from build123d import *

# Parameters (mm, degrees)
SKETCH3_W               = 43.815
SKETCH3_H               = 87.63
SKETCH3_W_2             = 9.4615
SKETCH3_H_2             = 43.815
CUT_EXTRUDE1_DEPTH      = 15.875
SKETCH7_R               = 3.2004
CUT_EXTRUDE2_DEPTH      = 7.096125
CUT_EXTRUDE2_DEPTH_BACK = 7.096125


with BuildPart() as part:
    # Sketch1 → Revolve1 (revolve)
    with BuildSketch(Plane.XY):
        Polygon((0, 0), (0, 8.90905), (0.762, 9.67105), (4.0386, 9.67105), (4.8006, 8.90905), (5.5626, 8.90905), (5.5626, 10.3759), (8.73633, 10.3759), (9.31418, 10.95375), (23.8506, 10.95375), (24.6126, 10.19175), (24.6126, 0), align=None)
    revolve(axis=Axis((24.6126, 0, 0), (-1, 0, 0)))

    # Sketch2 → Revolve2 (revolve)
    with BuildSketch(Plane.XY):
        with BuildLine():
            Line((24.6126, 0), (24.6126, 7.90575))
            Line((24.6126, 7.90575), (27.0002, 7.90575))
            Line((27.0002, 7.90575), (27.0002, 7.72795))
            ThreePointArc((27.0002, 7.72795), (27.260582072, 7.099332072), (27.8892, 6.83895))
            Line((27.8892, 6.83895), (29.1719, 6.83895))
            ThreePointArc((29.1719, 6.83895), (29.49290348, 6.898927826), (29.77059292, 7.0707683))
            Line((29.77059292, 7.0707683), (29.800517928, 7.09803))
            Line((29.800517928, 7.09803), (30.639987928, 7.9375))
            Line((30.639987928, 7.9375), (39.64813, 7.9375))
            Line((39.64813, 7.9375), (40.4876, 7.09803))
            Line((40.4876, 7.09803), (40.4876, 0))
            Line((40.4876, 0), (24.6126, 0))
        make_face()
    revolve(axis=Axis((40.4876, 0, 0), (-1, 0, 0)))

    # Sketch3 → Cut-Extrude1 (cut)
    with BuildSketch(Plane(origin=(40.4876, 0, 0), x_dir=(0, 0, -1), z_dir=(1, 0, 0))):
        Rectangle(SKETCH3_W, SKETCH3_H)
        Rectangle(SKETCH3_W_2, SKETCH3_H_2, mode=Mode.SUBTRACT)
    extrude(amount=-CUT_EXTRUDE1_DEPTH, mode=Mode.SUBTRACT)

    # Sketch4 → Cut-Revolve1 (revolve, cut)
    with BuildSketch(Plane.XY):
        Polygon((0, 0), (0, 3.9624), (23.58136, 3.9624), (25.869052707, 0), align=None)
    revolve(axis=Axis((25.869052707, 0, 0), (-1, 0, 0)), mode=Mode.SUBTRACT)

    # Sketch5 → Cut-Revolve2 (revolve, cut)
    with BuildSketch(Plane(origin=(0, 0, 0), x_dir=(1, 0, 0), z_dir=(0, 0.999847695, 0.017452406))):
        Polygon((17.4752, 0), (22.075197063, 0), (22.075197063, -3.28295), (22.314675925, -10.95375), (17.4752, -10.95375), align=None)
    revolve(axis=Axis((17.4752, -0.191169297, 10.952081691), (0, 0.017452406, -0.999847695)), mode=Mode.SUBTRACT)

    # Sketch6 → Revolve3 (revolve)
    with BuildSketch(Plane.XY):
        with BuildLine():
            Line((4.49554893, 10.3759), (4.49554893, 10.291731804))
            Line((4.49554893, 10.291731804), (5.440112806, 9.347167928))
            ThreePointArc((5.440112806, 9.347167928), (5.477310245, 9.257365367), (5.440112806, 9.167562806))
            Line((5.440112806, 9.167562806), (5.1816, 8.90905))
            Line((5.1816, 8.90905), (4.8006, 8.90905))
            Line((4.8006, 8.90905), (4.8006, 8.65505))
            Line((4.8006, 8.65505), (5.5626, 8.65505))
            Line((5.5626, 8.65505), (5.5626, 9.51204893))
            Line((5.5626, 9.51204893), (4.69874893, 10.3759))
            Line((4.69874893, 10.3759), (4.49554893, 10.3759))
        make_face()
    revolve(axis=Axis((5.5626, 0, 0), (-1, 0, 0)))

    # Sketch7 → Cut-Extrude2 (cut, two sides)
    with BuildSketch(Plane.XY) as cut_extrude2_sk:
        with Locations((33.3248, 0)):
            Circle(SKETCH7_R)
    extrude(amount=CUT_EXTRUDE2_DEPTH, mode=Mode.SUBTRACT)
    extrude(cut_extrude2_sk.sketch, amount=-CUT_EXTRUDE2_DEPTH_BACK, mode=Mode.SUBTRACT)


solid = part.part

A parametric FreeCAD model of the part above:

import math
import FreeCAD as App
import Part
import Sketcher
Q = App.Units.Quantity


def add_polygon(sketch, points):
    """Adds a closed chain of lines whose ends are joined by coincident constraints."""
    first, n = sketch.GeometryCount, len(points)
    for a, b in zip(points, points[1:] + points[:1]):
        sketch.addGeometry(Part.LineSegment(App.Vector(*a, 0), App.Vector(*b, 0)), False)
    for i in range(n):
        sketch.addConstraint(Sketcher.Constraint("Coincident", first + i, 2, first + (i + 1) % n, 1))

doc = App.newDocument("Part")
body = doc.addObject("PartDesign::Body", "Body")

sketch1 = body.newObject("Sketcher::SketchObject", "Sketch")
sketch1.AttachmentSupport = (doc.getObject("XY_Plane"), [""])
sketch1.MapMode = "FlatFace"
add_polygon(sketch1, [(0, 8.9), (0, 0), (24.6, 0), (24.6, 10.2), (23.9, 11), (9.3, 11), (8.7, 10.4), (5.6, 10.4), (5.6, 8.9), (4.8, 8.9), (4, 9.7), (0.8, 9.7)])
sketch1.addConstraint([
    Sketcher.Constraint("Vertical", 0),
    Sketcher.Constraint("Horizontal", 1),
    Sketcher.Constraint("Vertical", 2),
    Sketcher.Constraint("Horizontal", 4),
    Sketcher.Constraint("Horizontal", 6),
    Sketcher.Constraint("Vertical", 7),
    Sketcher.Constraint("Horizontal", 8),
    Sketcher.Constraint("Horizontal", 10),
    Sketcher.Constraint("Coincident", 0, 2, -1, 1),
    Sketcher.Constraint("Perpendicular", 3, 5),
    Sketcher.Constraint("Perpendicular", 5, 9),
    Sketcher.Constraint("Perpendicular", 9, 11),
    Sketcher.Constraint("Horizontal", 8, 2, 11, 2),
    Sketcher.Constraint("Equal", 3, 9),
    Sketcher.Constraint("Equal", 9, 11),
    Sketcher.Constraint("DistanceX", 8, 2, 8, 1, Q("0.03 in")),
    Sketcher.Constraint("DistanceX", 1, 1, 1, 2, Q("0.969 in")),
    Sketcher.Constraint("DistanceX", 10, 2, 10, 1, Q("0.129 in")),
    Sketcher.Constraint("DistanceX", -1, 1, 10, 2, Q("0.03 in")),
    Sketcher.Constraint("DistanceX", 4, 2, 4, 1, Q("0.5723 in")),
    Sketcher.Constraint("DistanceY", -1, 1, 5, 2, Q("0.4085 in")),
    Sketcher.Constraint("DistanceY", 7, 2, 4, 2, Q("0.0805 in")),
    Sketcher.Constraint("DistanceX", 6, 2, 6, 1, 3.17373),
])
revolution = body.newObject("PartDesign::Revolution", "Revolution")
revolution.Profile = sketch1
revolution.ReferenceAxis = (sketch1, ["H_Axis"])
revolution.Angle = 360

sketch2 = body.newObject("Sketcher::SketchObject", "Sketch001")
sketch2.AttachmentSupport = (doc.getObject("XY_Plane"), [""])
sketch2.MapMode = "FlatFace"
sketch2.addGeometry([
    Part.LineSegment(App.Vector(24.613, 7.906, 0), App.Vector(24.613, 0, 0)),
    Part.LineSegment(App.Vector(24.613, 0, 0), App.Vector(40.488, 0, 0)),
    Part.LineSegment(App.Vector(40.488, 0, 0), App.Vector(40.488, 7.098, 0)),
    Part.LineSegment(App.Vector(40.488, 7.098, 0), App.Vector(39.648, 7.938, 0)),
    Part.LineSegment(App.Vector(39.648, 7.938, 0), App.Vector(30.64, 7.938, 0)),
    Part.LineSegment(App.Vector(30.64, 7.938, 0), App.Vector(29.801, 7.098, 0)),
    Part.LineSegment(App.Vector(29.801, 7.098, 0), App.Vector(29.771, 7.071, 0)),
    Part.ArcOfCircle(Part.Circle(App.Vector(29.172, 7.728, 0), App.Vector(0, 0, 1), 0.889), math.radians(-90), math.radians(-48)),
    Part.LineSegment(App.Vector(29.172, 6.839, 0), App.Vector(27.889, 6.839, 0)),
    Part.ArcOfCircle(Part.Circle(App.Vector(27.889, 7.728, 0), App.Vector(0, 0, 1), 0.889), math.radians(-180), math.radians(-90)),
    Part.LineSegment(App.Vector(27, 7.728, 0), App.Vector(27, 7.906, 0)),
    Part.LineSegment(App.Vector(27, 7.906, 0), App.Vector(24.613, 7.906, 0)),
], False)
sketch2.addConstraint([
    Sketcher.Constraint("Coincident", 0, 2, 1, 1),
    Sketcher.Constraint("Coincident", 1, 2, 2, 1),
    Sketcher.Constraint("Coincident", 2, 2, 3, 1),
    Sketcher.Constraint("Coincident", 3, 2, 4, 1),
    Sketcher.Constraint("Coincident", 4, 2, 5, 1),
    Sketcher.Constraint("Coincident", 5, 2, 6, 1),
    Sketcher.Constraint("Tangent", 6, 2, 7, 2),
    Sketcher.Constraint("Tangent", 7, 1, 8, 1),
    Sketcher.Constraint("Tangent", 8, 2, 9, 2),
    Sketcher.Constraint("Tangent", 9, 1, 10, 1),
    Sketcher.Constraint("Coincident", 10, 2, 11, 1),
    Sketcher.Constraint("Coincident", 11, 2, 0, 1),
    Sketcher.Constraint("Vertical", 0),
    Sketcher.Constraint("Horizontal", 1),
    Sketcher.Constraint("Vertical", 2),
    Sketcher.Constraint("Horizontal", 4),
    Sketcher.Constraint("Horizontal", 8),
    Sketcher.Constraint("Vertical", 10),
    Sketcher.Constraint("Horizontal", 11),
    Sketcher.Constraint("Equal", 7, 9),
    Sketcher.Constraint("PointOnObject", 0, 2, -1),
    Sketcher.Constraint("Perpendicular", 3, 5),
    Sketcher.Constraint("Horizontal", 2, 2, 5, 2),
    Sketcher.Constraint("Equal", 3, 5),
    Sketcher.Constraint("Radius", 7, Q("0.035 in")),
    Sketcher.Constraint("DistanceX", 1, 1, 1, 2, Q("0.625 in")),
    Sketcher.Constraint("DistanceX", 11, 2, 11, 1, Q("0.094 in")),
    Sketcher.Constraint("DistanceY", 10, 1, 10, 2, Q("0.007 in")),
    Sketcher.Constraint("DistanceX", 8, 2, 8, 1, Q("0.0505 in")),
    Sketcher.Constraint("DistanceX", -1, 1, 9, 3, Q("1.098 in")),
    Sketcher.Constraint("DistanceY", -1, 1, 3, 2, Q("0.3125 in")),
    Sketcher.Constraint("DistanceY", 2, 2, 7, 3, Q("0.0248 in")),
    Sketcher.Constraint("DistanceY", 0, 2, 0, 1, 7.90575),
    Sketcher.Constraint("Distance", 6, 0.040481),
])
revolution2 = body.newObject("PartDesign::Revolution", "Revolution001")
revolution2.Profile = sketch2
revolution2.ReferenceAxis = (sketch2, ["H_Axis"])
revolution2.Angle = 360

sketch3 = body.newObject("Sketcher::SketchObject", "Sketch002")
sketch3.AttachmentSupport = (doc.getObject("YZ_Plane"), [""])
sketch3.MapMode = "FlatFace"
sketch3.AttachmentOffset = App.Placement(App.Vector(0, 0, 1.594 * 25.4), App.Rotation())
add_polygon(sketch3, [(44, 22), (-44, 22), (-44, -22), (44, -22)])
add_polygon(sketch3, [(-22, -5), (-22, 5), (22, 5), (22, -5)])
sketch3.addConstraint([
    Sketcher.Constraint("Horizontal", 0),
    Sketcher.Constraint("Vertical", 1),
    Sketcher.Constraint("Horizontal", 2),
    Sketcher.Constraint("Vertical", 3),
    Sketcher.Constraint("Vertical", 4),
    Sketcher.Constraint("Horizontal", 5),
    Sketcher.Constraint("Vertical", 6),
    Sketcher.Constraint("Horizontal", 7),
    Sketcher.Constraint("Symmetric", 0, 2, 2, 2, -1, 1),
    Sketcher.Constraint("Symmetric", 4, 2, 6, 2, -1, 1),
    Sketcher.Constraint("Equal", 7, 1),
    Sketcher.Constraint("DistanceX", 0, 2, 0, 1, Q("3.45 in")),
    Sketcher.Constraint("DistanceX", 5, 1, 5, 2, Q("1.725 in")),
    Sketcher.Constraint("DistanceY", 4, 1, 4, 2, Q("0.3725 in")),
])
pocket1 = body.newObject("PartDesign::Pocket", "Pocket")
pocket1.Profile = sketch3
pocket1.Length = Q("0.625 in")

sketch4 = body.newObject("Sketcher::SketchObject", "Sketch003")
sketch4.AttachmentSupport = (doc.getObject("XY_Plane"), [""])
sketch4.MapMode = "FlatFace"
add_polygon(sketch4, [(0, 4), (0, 0), (25.9, 0), (23.6, 4)])
sketch4.addConstraint([
    Sketcher.Constraint("Vertical", 0),
    Sketcher.Constraint("Horizontal", 1),
    Sketcher.Constraint("Horizontal", 3),
    Sketcher.Constraint("Coincident", 0, 2, -1, 1),
    Sketcher.Constraint("Angle", 2, Q("120 deg")),
    Sketcher.Constraint("DistanceY", 0, 2, 0, 1, Q("0.156 in")),
    Sketcher.Constraint("DistanceX", 3, 2, 3, 1, Q("0.9284 in")),
])
groove = body.newObject("PartDesign::Groove", "Groove")
groove.Profile = sketch4
groove.ReferenceAxis = (sketch4, ["H_Axis"])
groove.Angle = 360

sketch5 = body.newObject("Sketcher::SketchObject", "Sketch004")
sketch5.Placement = App.Placement(App.Vector(0, 0, 0), App.Rotation(App.Vector(1, 0, 0), App.Vector(0, 0.017452406, -0.999847695), App.Vector(0, 0.999847695, 0.017452406), "ZXY"))
add_polygon(sketch5, [(22.1, 0), (17.5, 0), (17.5, -11), (22.3, -11), (22.1, -3.3)])
sketch5.addGeometry(Part.LineSegment(App.Vector(17.5, -11, 0), App.Vector(17.5, 0, 0)), True)
sketch5.addConstraint([
    Sketcher.Constraint("Horizontal", 0),
    Sketcher.Constraint("Vertical", 1),
    Sketcher.Constraint("Horizontal", 2),
    Sketcher.Constraint("Vertical", 4),
    Sketcher.Constraint("Vertical", 5),
    Sketcher.Constraint("Coincident", 5, 1, 1, 2),
    Sketcher.Constraint("PointOnObject", 0, 2, -1),
    Sketcher.Constraint("PointOnObject", 5, 2, -1),
    Sketcher.Constraint("DistanceX", -1, 1, 0, 2, Q("0.688 in")),
    Sketcher.Constraint("DistanceY", 2, 2, 3, 2, Q("0.302 in")),
    Sketcher.Constraint("DistanceY", 1, 2, 1, 1, 10.95375),
    Sketcher.Constraint("DistanceX", 0, 2, 0, 1, 4.599997),
    Sketcher.Constraint("DistanceX", 2, 1, 2, 2, 4.839476),
])
groove2 = body.newObject("PartDesign::Groove", "Groove001")
groove2.Profile = sketch5
groove2.ReferenceAxis = (sketch5, ["Axis0"])
groove2.Angle = 360

sketch6 = body.newObject("Sketcher::SketchObject", "Sketch005")
sketch6.AttachmentSupport = (doc.getObject("XY_Plane"), [""])
sketch6.MapMode = "FlatFace"
sketch6.addGeometry([
    Part.LineSegment(App.Vector(4.5, 10.38, 0), App.Vector(4.5, 10.29, 0)),
    Part.LineSegment(App.Vector(4.5, 10.29, 0), App.Vector(5.44, 9.35, 0)),
    Part.ArcOfCircle(Part.Circle(App.Vector(5.35, 9.26, 0), App.Vector(0, 0, 1), 0.13), math.radians(-45), math.radians(45)),
    Part.LineSegment(App.Vector(5.44, 9.17, 0), App.Vector(5.18, 8.91, 0)),
    Part.LineSegment(App.Vector(5.18, 8.91, 0), App.Vector(4.8, 8.91, 0)),
    Part.LineSegment(App.Vector(4.8, 8.91, 0), App.Vector(4.8, 8.66, 0)),
    Part.LineSegment(App.Vector(4.8, 8.66, 0), App.Vector(5.56, 8.66, 0)),
    Part.LineSegment(App.Vector(5.56, 8.66, 0), App.Vector(5.56, 9.51, 0)),
    Part.LineSegment(App.Vector(5.56, 9.51, 0), App.Vector(4.7, 10.38, 0)),
    Part.LineSegment(App.Vector(4.7, 10.38, 0), App.Vector(4.5, 10.38, 0)),
], False)
sketch6.addConstraint([
    Sketcher.Constraint("Coincident", 0, 2, 1, 1),
    Sketcher.Constraint("Tangent", 1, 2, 2, 2),
    Sketcher.Constraint("Tangent", 2, 1, 3, 1),
    Sketcher.Constraint("Coincident", 3, 2, 4, 1),
    Sketcher.Constraint("Coincident", 4, 2, 5, 1),
    Sketcher.Constraint("Coincident", 5, 2, 6, 1),
    Sketcher.Constraint("Coincident", 6, 2, 7, 1),
    Sketcher.Constraint("Coincident", 7, 2, 8, 1),
    Sketcher.Constraint("Coincident", 8, 2, 9, 1),
    Sketcher.Constraint("Coincident", 9, 2, 0, 1),
    Sketcher.Constraint("Vertical", 0),
    Sketcher.Constraint("Horizontal", 4),
    Sketcher.Constraint("Vertical", 5),
    Sketcher.Constraint("Horizontal", 6),
    Sketcher.Constraint("Vertical", 7),
    Sketcher.Constraint("Horizontal", 9),
    Sketcher.Constraint("Perpendicular", 1, 3),
    Sketcher.Constraint("Perpendicular", 3, 8),
    Sketcher.Constraint("Vertical", 1, 2, 2, 1),
    Sketcher.Constraint("Radius", 2, Q("0.005 in")),
    Sketcher.Constraint("DistanceX", 6, 1, 6, 2, Q("0.03 in")),
    Sketcher.Constraint("DistanceY", 5, 2, 5, 1, Q("0.01 in")),
    Sketcher.Constraint("DistanceX", 4, 2, 4, 1, Q("0.015 in")),
    Sketcher.Constraint("DistanceX", 9, 2, 9, 1, Q("0.008 in")),
    Sketcher.Constraint("DistanceX", -1, 1, 3, 2, Q("0.204 in")),
    Sketcher.Constraint("DistanceY", 7, 1, 7, 2, 0.856999),
    Sketcher.Constraint("DistanceY", -1, 1, 8, 2, Q("0.4085 in")),
    Sketcher.Constraint("DistanceY", 0, 2, 0, 1, 0.084168),
    Sketcher.Constraint("Distance", 8, 1.22167),
])
revolution3 = body.newObject("PartDesign::Revolution", "Revolution002")
revolution3.Profile = sketch6
revolution3.ReferenceAxis = (sketch6, ["H_Axis"])
revolution3.Angle = 360

sketch7 = body.newObject("Sketcher::SketchObject", "Sketch006")
sketch7.AttachmentSupport = (doc.getObject("XY_Plane"), [""])
sketch7.MapMode = "FlatFace"
sketch7.addGeometry(Part.Circle(App.Vector(33.3, 0, 0), App.Vector(0, 0, 1), 3.2), False)
sketch7.addConstraint([
    Sketcher.Constraint("PointOnObject", 0, 3, -1),
    Sketcher.Constraint("Diameter", 0, Q("0.252 in")),
    Sketcher.Constraint("DistanceX", -1, 1, 0, 3, Q("1.312 in")),
])
pocket2 = body.newObject("PartDesign::Pocket", "Pocket001")
pocket2.Profile = sketch7
pocket2.Type = "ThroughAll"
pocket2.Midplane = True

doc.recompute()
